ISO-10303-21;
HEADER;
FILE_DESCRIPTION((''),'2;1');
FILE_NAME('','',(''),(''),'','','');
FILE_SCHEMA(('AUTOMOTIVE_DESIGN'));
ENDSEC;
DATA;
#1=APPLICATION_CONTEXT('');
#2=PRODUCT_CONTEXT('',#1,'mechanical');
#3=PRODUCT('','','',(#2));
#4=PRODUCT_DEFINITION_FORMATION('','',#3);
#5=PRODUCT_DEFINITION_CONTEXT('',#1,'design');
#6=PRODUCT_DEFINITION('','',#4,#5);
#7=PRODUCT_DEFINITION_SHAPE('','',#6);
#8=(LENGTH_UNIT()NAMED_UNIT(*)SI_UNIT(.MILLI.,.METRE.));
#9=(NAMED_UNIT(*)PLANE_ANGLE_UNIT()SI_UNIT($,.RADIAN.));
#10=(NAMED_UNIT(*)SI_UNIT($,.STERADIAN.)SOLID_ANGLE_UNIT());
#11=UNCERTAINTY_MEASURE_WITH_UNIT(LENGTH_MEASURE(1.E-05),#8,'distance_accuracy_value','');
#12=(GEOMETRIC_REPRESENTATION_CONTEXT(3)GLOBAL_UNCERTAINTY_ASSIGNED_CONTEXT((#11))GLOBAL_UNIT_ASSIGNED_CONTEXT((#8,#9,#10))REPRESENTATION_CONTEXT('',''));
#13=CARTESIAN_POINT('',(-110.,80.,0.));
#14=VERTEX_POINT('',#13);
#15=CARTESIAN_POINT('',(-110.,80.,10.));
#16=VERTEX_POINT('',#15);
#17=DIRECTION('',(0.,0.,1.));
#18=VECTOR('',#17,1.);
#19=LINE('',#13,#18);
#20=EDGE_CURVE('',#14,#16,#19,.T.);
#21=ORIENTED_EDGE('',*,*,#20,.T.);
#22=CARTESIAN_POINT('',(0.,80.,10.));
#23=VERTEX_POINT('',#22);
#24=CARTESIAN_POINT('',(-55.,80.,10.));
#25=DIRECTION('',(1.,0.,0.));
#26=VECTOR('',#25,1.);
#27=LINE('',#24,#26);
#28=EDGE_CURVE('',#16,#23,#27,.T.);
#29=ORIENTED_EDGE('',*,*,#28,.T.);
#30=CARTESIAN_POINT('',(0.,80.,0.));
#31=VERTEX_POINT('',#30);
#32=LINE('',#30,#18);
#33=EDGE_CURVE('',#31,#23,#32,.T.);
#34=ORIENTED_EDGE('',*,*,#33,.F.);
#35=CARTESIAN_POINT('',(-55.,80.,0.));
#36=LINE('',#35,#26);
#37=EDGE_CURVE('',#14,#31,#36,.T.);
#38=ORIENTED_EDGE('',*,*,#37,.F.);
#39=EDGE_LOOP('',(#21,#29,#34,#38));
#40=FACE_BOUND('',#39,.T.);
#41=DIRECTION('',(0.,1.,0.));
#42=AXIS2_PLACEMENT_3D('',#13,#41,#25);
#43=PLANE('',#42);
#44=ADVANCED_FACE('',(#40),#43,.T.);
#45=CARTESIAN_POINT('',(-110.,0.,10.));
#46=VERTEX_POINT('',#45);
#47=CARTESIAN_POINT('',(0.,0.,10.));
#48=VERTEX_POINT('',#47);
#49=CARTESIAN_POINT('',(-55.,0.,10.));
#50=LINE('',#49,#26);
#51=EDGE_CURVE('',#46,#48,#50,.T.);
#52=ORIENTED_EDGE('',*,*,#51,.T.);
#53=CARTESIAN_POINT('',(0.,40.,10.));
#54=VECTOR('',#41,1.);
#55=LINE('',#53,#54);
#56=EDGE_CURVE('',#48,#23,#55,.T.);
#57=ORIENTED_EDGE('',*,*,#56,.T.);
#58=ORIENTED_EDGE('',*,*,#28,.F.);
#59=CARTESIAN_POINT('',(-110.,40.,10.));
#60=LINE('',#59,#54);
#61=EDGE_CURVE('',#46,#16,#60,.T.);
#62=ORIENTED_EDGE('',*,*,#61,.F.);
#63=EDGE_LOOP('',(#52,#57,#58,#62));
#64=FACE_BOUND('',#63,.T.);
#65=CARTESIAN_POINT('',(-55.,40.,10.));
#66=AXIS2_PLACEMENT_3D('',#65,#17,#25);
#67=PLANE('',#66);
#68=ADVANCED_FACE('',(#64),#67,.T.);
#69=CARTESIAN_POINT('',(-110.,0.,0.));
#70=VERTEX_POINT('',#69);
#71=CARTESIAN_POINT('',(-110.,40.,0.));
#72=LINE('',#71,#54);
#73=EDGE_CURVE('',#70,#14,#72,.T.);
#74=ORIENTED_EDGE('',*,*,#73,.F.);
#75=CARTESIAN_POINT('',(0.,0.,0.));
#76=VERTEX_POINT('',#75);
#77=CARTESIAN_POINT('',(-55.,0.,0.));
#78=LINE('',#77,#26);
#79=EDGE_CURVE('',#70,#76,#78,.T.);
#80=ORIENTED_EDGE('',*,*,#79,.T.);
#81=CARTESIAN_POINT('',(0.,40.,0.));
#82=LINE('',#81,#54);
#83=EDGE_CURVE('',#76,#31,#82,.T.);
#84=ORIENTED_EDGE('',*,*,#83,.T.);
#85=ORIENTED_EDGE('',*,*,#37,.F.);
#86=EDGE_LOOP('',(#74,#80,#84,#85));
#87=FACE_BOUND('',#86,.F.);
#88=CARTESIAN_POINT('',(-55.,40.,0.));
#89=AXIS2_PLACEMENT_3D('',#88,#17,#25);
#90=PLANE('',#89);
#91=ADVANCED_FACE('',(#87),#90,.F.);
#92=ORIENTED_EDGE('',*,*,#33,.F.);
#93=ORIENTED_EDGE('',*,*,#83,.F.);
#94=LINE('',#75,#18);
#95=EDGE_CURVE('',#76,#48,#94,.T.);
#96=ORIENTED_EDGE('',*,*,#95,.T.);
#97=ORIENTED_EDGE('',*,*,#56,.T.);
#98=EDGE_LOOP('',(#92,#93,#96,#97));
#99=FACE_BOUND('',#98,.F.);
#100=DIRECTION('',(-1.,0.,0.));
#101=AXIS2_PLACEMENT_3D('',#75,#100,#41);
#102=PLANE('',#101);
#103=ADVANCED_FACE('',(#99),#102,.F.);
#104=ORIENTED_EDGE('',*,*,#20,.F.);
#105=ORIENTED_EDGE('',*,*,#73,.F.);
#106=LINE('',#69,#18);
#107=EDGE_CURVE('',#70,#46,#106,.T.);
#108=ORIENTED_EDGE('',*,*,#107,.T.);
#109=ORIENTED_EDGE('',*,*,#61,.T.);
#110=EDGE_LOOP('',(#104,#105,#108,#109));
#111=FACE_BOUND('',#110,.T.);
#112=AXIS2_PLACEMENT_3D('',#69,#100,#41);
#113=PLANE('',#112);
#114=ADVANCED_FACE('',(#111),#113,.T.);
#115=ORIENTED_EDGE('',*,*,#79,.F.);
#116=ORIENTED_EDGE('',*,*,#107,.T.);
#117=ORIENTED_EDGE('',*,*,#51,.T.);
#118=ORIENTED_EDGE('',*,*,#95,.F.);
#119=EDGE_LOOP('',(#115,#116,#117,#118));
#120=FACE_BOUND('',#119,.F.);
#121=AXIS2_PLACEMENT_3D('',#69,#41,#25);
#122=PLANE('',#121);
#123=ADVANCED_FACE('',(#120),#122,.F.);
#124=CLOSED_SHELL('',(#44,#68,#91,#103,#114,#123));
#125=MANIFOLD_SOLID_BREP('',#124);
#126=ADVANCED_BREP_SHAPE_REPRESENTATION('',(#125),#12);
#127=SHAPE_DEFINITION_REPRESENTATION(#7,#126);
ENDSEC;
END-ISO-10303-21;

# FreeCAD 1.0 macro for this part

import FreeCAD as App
import Part
import Sketcher
Q = App.Units.Quantity

doc = App.newDocument("Part")
body = doc.addObject("PartDesign::Body", "Body")

# Sketch on XY plane
sketch1 = body.newObject("Sketcher::SketchObject", "Sketch")
sketch1.AttachmentSupport = (doc.getObject("XY_Plane"), [""])
sketch1.MapMode = "FlatFace"
sketch1.addGeometry(Part.LineSegment(App.Vector(-110, 80, 0), App.Vector(-110, 0, 0)), False)
sketch1.addGeometry(Part.LineSegment(App.Vector(-110, 0, 0), App.Vector(0, 0, 0)), False)
sketch1.addGeometry(Part.LineSegment(App.Vector(0, 0, 0), App.Vector(0, 80, 0)), False)
sketch1.addGeometry(Part.LineSegment(App.Vector(0, 80, 0), App.Vector(-110, 80, 0)), False)
sketch1.addConstraint(Sketcher.Constraint("Coincident", 0, 2, 1, 1))
sketch1.addConstraint(Sketcher.Constraint("Coincident", 1, 2, 2, 1))
sketch1.addConstraint(Sketcher.Constraint("Coincident", 2, 2, 3, 1))
sketch1.addConstraint(Sketcher.Constraint("Coincident", 3, 2, 0, 1))
sketch1.addConstraint(Sketcher.Constraint("Vertical", 0))
sketch1.addConstraint(Sketcher.Constraint("Horizontal", 1))
sketch1.addConstraint(Sketcher.Constraint("Vertical", 2))
sketch1.addConstraint(Sketcher.Constraint("Horizontal", 3))
sketch1.addConstraint(Sketcher.Constraint("Coincident", 1, 2, -1, 1))
sketch1.addConstraint(Sketcher.Constraint("DistanceX", 1, 1, 1, 2, Q("110 mm")))
sketch1.addConstraint(Sketcher.Constraint("DistanceY", 0, 2, 0, 1, Q("80 mm")))
pad1 = body.newObject("PartDesign::Pad", "Pad")
pad1.Profile = sketch1
pad1.Length = 10

doc.recompute()
